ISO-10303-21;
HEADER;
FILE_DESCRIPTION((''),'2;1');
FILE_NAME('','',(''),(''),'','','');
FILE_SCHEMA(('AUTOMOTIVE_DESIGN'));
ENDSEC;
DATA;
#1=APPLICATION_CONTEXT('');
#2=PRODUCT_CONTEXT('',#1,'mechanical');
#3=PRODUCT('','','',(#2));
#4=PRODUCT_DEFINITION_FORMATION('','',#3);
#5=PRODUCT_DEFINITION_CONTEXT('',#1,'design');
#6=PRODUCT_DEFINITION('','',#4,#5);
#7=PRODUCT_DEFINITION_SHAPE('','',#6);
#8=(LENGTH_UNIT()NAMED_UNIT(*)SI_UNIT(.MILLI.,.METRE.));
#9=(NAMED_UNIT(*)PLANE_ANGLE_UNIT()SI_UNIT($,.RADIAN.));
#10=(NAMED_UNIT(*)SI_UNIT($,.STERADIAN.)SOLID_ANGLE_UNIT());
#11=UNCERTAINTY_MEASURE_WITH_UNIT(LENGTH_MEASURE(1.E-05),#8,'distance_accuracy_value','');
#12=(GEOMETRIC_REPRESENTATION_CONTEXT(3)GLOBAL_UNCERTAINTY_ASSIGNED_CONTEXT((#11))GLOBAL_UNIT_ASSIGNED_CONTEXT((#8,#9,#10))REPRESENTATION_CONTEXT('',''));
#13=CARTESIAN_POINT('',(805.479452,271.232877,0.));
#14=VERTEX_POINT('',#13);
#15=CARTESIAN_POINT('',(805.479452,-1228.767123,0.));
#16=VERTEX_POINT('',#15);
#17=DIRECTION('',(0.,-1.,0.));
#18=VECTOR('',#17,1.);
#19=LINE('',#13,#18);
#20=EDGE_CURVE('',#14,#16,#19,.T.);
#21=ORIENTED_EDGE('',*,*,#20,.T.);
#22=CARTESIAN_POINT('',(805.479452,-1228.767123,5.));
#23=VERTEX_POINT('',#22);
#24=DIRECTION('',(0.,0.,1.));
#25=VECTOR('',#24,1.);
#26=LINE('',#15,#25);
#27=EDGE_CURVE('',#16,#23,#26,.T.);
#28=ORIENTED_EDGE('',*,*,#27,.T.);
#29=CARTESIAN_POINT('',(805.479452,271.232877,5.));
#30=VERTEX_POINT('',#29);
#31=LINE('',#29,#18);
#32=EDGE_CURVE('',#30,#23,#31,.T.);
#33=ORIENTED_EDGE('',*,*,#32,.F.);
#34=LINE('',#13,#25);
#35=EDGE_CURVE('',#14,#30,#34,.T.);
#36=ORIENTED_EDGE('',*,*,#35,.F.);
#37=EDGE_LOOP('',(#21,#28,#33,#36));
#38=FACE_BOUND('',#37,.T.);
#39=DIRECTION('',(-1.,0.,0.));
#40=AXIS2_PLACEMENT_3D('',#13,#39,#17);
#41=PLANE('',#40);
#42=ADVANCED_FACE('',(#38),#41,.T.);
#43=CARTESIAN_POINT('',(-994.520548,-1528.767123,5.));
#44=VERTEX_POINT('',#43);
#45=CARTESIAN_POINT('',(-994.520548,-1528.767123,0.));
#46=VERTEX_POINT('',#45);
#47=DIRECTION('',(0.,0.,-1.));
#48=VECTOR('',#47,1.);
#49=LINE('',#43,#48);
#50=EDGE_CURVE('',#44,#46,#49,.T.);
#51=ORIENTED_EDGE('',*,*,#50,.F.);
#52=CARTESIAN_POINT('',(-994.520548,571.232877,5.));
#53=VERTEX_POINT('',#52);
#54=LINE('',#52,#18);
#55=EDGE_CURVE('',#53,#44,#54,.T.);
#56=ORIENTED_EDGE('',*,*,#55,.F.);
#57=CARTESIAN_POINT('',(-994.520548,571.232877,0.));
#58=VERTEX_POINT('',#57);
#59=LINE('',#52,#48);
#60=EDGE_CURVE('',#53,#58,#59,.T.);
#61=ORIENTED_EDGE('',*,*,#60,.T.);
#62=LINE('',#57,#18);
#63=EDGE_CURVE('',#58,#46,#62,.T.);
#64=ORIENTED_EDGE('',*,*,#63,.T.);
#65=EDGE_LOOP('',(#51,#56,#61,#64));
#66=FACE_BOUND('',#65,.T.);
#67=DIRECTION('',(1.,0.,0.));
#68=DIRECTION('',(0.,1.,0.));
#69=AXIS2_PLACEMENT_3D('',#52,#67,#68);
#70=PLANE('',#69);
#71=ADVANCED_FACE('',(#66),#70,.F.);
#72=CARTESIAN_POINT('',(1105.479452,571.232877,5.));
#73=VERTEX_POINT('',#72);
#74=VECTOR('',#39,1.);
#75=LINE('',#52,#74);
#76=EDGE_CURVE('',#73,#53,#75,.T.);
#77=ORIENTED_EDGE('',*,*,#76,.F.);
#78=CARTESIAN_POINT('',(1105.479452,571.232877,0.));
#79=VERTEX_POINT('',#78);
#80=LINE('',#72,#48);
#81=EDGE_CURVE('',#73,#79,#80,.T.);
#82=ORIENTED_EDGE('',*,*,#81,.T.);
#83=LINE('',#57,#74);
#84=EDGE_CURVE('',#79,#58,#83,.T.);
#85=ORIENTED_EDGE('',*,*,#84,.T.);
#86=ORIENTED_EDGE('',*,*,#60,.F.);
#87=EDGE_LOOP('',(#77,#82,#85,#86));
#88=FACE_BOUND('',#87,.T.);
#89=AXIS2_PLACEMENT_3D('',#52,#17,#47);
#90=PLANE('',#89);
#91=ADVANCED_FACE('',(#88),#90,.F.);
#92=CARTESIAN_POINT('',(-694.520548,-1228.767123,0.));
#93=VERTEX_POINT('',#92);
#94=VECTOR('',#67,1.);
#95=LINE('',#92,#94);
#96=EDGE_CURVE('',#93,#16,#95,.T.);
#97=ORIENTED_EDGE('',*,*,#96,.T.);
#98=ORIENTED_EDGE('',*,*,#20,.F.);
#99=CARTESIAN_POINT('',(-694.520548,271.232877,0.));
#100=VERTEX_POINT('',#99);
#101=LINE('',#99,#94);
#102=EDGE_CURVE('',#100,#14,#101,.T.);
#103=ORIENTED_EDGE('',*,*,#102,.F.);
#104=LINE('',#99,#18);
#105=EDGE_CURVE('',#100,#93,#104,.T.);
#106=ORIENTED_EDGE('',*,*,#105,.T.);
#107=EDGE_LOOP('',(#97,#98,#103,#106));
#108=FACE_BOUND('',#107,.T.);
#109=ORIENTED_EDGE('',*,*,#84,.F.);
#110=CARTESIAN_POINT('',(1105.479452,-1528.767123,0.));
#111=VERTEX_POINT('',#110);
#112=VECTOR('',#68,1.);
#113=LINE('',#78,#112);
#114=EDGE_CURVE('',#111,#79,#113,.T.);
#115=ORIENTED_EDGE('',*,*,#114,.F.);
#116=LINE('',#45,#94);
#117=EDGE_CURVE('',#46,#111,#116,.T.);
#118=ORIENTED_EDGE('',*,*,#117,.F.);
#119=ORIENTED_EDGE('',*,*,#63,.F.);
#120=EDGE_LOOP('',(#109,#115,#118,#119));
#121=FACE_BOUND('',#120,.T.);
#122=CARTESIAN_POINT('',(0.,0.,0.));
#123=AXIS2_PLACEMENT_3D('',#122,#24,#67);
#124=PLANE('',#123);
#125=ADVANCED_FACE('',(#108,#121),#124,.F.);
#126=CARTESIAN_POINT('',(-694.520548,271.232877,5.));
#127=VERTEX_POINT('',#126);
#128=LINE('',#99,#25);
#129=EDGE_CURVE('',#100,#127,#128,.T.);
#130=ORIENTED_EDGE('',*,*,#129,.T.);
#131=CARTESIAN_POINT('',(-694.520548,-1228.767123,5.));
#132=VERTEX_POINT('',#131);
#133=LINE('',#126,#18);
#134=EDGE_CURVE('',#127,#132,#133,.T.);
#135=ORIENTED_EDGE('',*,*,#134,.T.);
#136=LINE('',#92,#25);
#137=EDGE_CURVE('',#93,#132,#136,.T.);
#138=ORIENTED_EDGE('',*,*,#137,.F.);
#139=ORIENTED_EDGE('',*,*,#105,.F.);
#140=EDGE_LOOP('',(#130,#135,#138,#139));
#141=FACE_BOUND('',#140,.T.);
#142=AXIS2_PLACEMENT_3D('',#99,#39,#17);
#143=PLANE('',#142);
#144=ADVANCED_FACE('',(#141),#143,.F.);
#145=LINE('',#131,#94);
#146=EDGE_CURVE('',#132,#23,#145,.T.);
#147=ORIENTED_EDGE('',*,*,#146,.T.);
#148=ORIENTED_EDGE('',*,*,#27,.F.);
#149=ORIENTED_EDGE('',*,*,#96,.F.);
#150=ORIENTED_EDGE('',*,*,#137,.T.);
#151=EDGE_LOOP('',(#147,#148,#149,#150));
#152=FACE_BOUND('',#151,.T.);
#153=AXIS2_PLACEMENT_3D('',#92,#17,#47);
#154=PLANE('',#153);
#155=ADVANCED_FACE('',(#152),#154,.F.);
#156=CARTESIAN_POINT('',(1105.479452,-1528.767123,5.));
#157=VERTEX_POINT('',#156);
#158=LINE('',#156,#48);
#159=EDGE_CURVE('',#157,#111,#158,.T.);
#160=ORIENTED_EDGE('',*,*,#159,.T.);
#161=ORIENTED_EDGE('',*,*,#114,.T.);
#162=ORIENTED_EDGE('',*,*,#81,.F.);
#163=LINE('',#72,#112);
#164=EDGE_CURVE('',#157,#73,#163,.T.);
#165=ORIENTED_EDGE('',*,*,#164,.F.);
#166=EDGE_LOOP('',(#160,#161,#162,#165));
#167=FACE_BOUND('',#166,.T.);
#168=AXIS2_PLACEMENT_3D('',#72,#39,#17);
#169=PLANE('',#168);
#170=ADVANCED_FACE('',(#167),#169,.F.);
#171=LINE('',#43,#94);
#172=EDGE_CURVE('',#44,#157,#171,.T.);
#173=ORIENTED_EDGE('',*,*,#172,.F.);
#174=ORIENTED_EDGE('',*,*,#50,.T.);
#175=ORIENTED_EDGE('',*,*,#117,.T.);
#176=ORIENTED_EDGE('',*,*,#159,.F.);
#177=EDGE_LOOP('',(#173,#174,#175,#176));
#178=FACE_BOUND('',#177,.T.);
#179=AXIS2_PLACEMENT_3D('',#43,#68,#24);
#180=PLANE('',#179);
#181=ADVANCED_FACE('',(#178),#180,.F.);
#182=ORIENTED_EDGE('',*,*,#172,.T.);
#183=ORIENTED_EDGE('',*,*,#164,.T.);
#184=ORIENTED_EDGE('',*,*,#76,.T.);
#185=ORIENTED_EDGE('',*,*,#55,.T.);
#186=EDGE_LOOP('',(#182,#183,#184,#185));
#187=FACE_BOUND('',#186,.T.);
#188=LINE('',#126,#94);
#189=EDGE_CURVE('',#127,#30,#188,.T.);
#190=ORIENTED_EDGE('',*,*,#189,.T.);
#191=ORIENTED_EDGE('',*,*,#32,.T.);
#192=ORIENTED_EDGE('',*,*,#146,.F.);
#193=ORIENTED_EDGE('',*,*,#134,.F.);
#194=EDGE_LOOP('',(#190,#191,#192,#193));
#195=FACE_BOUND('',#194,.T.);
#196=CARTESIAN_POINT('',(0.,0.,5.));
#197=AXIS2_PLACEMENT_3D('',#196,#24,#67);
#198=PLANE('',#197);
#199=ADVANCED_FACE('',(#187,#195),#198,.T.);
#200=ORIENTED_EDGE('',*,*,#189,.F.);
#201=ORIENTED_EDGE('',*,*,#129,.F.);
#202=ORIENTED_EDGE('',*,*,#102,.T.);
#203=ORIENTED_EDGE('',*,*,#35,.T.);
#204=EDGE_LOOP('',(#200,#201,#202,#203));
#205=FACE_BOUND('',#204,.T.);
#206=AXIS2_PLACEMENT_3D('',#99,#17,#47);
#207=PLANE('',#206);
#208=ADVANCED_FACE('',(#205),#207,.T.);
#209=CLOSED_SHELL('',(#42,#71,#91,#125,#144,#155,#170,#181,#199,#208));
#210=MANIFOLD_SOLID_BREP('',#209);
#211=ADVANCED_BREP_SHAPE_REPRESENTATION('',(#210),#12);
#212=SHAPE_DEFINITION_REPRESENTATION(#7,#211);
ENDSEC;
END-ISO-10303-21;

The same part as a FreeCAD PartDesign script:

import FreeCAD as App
import Part
import Sketcher

V = App.Vector
Q = App.Units.Quantity


def add_polygon(sketch, points):
    """Adds a closed chain of lines whose ends are joined by coincident constraints."""
    first, n = sketch.GeometryCount, len(points)
    for a, b in zip(points, points[1:] + points[:1]):
        sketch.addGeometry(Part.LineSegment(App.Vector(*a, 0), App.Vector(*b, 0)), False)
    for i in range(n):
        sketch.addConstraint(Sketcher.Constraint("Coincident", first + i, 2, first + (i + 1) % n, 1))

doc = App.newDocument("Part")
params = doc.addObject("Spreadsheet::Sheet", "Params")
for row, (alias, value) in enumerate([
    ("sketch1_width", "2100 mm"),
    ("pad1_length", "5 mm"),
    ("sketch2_width", "1500 mm"),
], start=1):
    params.set(f"A{row}", alias)
    params.set(f"B{row}", "=" + value)
    params.setAlias(f"B{row}", alias)

body = doc.addObject("PartDesign::Body", "Body")

# Sketch on XY plane
sketch1 = body.newObject("Sketcher::SketchObject", "Sketch")
sketch1.AttachmentSupport = (doc.getObject("XY_Plane"), [""])
sketch1.MapMode = "FlatFace"
add_polygon(sketch1, [(-995, 571), (-995, -1529), (1105, -1529), (1105, 571)])  # lines 0-3
sketch1.addConstraint([
    Sketcher.Constraint("Vertical", 0),
    Sketcher.Constraint("Horizontal", 1),
    Sketcher.Constraint("Vertical", 2),
    Sketcher.Constraint("Horizontal", 3),
    Sketcher.Constraint("Equal", 3, 0),
    Sketcher.Constraint("DistanceX", 1, 1, 1, 2, Q("2100 mm")),
    Sketcher.Constraint("DistanceX", 0, 2, -1, 1, Q("994.520548 mm")),
    Sketcher.Constraint("DistanceY", 0, 2, -1, 1, Q("1528.767123 mm")),
])
sketch1.setExpression("Constraints[9]", "Params.sketch1_width")
pad1 = body.newObject("PartDesign::Pad", "Pad")
pad1.Profile = sketch1
pad1.setExpression("Length", "Params.pad1_length")

# Sketch on XY plane
sketch2 = body.newObject("Sketcher::SketchObject", "Sketch001")
sketch2.AttachmentSupport = (doc.getObject("XY_Plane"), [""])
sketch2.MapMode = "FlatFace"
sketch2.AttachmentOffset = App.Placement(V(0, 0, 5), App.Rotation())
add_polygon(sketch2, [(-695, 271), (-695, -1229), (805, -1229), (805, 271)])  # lines 0-3
sketch2.addConstraint([
    Sketcher.Constraint("Vertical", 0),
    Sketcher.Constraint("Horizontal", 1),
    Sketcher.Constraint("Vertical", 2),
    Sketcher.Constraint("Horizontal", 3),
    Sketcher.Constraint("Equal", 3, 0),
    Sketcher.Constraint("DistanceX", 1, 1, 1, 2, Q("1500 mm")),
    Sketcher.Constraint("DistanceX", 0, 2, -1, 1, Q("694.520548 mm")),
    Sketcher.Constraint("DistanceY", 0, 2, -1, 1, Q("1228.767123 mm")),
])
sketch2.setExpression("Constraints[9]", "Params.sketch2_width")
pocket1 = body.newObject("PartDesign::Pocket", "Pocket")
pocket1.Profile = sketch2
pocket1.Type = "ThroughAll"

doc.recompute()
